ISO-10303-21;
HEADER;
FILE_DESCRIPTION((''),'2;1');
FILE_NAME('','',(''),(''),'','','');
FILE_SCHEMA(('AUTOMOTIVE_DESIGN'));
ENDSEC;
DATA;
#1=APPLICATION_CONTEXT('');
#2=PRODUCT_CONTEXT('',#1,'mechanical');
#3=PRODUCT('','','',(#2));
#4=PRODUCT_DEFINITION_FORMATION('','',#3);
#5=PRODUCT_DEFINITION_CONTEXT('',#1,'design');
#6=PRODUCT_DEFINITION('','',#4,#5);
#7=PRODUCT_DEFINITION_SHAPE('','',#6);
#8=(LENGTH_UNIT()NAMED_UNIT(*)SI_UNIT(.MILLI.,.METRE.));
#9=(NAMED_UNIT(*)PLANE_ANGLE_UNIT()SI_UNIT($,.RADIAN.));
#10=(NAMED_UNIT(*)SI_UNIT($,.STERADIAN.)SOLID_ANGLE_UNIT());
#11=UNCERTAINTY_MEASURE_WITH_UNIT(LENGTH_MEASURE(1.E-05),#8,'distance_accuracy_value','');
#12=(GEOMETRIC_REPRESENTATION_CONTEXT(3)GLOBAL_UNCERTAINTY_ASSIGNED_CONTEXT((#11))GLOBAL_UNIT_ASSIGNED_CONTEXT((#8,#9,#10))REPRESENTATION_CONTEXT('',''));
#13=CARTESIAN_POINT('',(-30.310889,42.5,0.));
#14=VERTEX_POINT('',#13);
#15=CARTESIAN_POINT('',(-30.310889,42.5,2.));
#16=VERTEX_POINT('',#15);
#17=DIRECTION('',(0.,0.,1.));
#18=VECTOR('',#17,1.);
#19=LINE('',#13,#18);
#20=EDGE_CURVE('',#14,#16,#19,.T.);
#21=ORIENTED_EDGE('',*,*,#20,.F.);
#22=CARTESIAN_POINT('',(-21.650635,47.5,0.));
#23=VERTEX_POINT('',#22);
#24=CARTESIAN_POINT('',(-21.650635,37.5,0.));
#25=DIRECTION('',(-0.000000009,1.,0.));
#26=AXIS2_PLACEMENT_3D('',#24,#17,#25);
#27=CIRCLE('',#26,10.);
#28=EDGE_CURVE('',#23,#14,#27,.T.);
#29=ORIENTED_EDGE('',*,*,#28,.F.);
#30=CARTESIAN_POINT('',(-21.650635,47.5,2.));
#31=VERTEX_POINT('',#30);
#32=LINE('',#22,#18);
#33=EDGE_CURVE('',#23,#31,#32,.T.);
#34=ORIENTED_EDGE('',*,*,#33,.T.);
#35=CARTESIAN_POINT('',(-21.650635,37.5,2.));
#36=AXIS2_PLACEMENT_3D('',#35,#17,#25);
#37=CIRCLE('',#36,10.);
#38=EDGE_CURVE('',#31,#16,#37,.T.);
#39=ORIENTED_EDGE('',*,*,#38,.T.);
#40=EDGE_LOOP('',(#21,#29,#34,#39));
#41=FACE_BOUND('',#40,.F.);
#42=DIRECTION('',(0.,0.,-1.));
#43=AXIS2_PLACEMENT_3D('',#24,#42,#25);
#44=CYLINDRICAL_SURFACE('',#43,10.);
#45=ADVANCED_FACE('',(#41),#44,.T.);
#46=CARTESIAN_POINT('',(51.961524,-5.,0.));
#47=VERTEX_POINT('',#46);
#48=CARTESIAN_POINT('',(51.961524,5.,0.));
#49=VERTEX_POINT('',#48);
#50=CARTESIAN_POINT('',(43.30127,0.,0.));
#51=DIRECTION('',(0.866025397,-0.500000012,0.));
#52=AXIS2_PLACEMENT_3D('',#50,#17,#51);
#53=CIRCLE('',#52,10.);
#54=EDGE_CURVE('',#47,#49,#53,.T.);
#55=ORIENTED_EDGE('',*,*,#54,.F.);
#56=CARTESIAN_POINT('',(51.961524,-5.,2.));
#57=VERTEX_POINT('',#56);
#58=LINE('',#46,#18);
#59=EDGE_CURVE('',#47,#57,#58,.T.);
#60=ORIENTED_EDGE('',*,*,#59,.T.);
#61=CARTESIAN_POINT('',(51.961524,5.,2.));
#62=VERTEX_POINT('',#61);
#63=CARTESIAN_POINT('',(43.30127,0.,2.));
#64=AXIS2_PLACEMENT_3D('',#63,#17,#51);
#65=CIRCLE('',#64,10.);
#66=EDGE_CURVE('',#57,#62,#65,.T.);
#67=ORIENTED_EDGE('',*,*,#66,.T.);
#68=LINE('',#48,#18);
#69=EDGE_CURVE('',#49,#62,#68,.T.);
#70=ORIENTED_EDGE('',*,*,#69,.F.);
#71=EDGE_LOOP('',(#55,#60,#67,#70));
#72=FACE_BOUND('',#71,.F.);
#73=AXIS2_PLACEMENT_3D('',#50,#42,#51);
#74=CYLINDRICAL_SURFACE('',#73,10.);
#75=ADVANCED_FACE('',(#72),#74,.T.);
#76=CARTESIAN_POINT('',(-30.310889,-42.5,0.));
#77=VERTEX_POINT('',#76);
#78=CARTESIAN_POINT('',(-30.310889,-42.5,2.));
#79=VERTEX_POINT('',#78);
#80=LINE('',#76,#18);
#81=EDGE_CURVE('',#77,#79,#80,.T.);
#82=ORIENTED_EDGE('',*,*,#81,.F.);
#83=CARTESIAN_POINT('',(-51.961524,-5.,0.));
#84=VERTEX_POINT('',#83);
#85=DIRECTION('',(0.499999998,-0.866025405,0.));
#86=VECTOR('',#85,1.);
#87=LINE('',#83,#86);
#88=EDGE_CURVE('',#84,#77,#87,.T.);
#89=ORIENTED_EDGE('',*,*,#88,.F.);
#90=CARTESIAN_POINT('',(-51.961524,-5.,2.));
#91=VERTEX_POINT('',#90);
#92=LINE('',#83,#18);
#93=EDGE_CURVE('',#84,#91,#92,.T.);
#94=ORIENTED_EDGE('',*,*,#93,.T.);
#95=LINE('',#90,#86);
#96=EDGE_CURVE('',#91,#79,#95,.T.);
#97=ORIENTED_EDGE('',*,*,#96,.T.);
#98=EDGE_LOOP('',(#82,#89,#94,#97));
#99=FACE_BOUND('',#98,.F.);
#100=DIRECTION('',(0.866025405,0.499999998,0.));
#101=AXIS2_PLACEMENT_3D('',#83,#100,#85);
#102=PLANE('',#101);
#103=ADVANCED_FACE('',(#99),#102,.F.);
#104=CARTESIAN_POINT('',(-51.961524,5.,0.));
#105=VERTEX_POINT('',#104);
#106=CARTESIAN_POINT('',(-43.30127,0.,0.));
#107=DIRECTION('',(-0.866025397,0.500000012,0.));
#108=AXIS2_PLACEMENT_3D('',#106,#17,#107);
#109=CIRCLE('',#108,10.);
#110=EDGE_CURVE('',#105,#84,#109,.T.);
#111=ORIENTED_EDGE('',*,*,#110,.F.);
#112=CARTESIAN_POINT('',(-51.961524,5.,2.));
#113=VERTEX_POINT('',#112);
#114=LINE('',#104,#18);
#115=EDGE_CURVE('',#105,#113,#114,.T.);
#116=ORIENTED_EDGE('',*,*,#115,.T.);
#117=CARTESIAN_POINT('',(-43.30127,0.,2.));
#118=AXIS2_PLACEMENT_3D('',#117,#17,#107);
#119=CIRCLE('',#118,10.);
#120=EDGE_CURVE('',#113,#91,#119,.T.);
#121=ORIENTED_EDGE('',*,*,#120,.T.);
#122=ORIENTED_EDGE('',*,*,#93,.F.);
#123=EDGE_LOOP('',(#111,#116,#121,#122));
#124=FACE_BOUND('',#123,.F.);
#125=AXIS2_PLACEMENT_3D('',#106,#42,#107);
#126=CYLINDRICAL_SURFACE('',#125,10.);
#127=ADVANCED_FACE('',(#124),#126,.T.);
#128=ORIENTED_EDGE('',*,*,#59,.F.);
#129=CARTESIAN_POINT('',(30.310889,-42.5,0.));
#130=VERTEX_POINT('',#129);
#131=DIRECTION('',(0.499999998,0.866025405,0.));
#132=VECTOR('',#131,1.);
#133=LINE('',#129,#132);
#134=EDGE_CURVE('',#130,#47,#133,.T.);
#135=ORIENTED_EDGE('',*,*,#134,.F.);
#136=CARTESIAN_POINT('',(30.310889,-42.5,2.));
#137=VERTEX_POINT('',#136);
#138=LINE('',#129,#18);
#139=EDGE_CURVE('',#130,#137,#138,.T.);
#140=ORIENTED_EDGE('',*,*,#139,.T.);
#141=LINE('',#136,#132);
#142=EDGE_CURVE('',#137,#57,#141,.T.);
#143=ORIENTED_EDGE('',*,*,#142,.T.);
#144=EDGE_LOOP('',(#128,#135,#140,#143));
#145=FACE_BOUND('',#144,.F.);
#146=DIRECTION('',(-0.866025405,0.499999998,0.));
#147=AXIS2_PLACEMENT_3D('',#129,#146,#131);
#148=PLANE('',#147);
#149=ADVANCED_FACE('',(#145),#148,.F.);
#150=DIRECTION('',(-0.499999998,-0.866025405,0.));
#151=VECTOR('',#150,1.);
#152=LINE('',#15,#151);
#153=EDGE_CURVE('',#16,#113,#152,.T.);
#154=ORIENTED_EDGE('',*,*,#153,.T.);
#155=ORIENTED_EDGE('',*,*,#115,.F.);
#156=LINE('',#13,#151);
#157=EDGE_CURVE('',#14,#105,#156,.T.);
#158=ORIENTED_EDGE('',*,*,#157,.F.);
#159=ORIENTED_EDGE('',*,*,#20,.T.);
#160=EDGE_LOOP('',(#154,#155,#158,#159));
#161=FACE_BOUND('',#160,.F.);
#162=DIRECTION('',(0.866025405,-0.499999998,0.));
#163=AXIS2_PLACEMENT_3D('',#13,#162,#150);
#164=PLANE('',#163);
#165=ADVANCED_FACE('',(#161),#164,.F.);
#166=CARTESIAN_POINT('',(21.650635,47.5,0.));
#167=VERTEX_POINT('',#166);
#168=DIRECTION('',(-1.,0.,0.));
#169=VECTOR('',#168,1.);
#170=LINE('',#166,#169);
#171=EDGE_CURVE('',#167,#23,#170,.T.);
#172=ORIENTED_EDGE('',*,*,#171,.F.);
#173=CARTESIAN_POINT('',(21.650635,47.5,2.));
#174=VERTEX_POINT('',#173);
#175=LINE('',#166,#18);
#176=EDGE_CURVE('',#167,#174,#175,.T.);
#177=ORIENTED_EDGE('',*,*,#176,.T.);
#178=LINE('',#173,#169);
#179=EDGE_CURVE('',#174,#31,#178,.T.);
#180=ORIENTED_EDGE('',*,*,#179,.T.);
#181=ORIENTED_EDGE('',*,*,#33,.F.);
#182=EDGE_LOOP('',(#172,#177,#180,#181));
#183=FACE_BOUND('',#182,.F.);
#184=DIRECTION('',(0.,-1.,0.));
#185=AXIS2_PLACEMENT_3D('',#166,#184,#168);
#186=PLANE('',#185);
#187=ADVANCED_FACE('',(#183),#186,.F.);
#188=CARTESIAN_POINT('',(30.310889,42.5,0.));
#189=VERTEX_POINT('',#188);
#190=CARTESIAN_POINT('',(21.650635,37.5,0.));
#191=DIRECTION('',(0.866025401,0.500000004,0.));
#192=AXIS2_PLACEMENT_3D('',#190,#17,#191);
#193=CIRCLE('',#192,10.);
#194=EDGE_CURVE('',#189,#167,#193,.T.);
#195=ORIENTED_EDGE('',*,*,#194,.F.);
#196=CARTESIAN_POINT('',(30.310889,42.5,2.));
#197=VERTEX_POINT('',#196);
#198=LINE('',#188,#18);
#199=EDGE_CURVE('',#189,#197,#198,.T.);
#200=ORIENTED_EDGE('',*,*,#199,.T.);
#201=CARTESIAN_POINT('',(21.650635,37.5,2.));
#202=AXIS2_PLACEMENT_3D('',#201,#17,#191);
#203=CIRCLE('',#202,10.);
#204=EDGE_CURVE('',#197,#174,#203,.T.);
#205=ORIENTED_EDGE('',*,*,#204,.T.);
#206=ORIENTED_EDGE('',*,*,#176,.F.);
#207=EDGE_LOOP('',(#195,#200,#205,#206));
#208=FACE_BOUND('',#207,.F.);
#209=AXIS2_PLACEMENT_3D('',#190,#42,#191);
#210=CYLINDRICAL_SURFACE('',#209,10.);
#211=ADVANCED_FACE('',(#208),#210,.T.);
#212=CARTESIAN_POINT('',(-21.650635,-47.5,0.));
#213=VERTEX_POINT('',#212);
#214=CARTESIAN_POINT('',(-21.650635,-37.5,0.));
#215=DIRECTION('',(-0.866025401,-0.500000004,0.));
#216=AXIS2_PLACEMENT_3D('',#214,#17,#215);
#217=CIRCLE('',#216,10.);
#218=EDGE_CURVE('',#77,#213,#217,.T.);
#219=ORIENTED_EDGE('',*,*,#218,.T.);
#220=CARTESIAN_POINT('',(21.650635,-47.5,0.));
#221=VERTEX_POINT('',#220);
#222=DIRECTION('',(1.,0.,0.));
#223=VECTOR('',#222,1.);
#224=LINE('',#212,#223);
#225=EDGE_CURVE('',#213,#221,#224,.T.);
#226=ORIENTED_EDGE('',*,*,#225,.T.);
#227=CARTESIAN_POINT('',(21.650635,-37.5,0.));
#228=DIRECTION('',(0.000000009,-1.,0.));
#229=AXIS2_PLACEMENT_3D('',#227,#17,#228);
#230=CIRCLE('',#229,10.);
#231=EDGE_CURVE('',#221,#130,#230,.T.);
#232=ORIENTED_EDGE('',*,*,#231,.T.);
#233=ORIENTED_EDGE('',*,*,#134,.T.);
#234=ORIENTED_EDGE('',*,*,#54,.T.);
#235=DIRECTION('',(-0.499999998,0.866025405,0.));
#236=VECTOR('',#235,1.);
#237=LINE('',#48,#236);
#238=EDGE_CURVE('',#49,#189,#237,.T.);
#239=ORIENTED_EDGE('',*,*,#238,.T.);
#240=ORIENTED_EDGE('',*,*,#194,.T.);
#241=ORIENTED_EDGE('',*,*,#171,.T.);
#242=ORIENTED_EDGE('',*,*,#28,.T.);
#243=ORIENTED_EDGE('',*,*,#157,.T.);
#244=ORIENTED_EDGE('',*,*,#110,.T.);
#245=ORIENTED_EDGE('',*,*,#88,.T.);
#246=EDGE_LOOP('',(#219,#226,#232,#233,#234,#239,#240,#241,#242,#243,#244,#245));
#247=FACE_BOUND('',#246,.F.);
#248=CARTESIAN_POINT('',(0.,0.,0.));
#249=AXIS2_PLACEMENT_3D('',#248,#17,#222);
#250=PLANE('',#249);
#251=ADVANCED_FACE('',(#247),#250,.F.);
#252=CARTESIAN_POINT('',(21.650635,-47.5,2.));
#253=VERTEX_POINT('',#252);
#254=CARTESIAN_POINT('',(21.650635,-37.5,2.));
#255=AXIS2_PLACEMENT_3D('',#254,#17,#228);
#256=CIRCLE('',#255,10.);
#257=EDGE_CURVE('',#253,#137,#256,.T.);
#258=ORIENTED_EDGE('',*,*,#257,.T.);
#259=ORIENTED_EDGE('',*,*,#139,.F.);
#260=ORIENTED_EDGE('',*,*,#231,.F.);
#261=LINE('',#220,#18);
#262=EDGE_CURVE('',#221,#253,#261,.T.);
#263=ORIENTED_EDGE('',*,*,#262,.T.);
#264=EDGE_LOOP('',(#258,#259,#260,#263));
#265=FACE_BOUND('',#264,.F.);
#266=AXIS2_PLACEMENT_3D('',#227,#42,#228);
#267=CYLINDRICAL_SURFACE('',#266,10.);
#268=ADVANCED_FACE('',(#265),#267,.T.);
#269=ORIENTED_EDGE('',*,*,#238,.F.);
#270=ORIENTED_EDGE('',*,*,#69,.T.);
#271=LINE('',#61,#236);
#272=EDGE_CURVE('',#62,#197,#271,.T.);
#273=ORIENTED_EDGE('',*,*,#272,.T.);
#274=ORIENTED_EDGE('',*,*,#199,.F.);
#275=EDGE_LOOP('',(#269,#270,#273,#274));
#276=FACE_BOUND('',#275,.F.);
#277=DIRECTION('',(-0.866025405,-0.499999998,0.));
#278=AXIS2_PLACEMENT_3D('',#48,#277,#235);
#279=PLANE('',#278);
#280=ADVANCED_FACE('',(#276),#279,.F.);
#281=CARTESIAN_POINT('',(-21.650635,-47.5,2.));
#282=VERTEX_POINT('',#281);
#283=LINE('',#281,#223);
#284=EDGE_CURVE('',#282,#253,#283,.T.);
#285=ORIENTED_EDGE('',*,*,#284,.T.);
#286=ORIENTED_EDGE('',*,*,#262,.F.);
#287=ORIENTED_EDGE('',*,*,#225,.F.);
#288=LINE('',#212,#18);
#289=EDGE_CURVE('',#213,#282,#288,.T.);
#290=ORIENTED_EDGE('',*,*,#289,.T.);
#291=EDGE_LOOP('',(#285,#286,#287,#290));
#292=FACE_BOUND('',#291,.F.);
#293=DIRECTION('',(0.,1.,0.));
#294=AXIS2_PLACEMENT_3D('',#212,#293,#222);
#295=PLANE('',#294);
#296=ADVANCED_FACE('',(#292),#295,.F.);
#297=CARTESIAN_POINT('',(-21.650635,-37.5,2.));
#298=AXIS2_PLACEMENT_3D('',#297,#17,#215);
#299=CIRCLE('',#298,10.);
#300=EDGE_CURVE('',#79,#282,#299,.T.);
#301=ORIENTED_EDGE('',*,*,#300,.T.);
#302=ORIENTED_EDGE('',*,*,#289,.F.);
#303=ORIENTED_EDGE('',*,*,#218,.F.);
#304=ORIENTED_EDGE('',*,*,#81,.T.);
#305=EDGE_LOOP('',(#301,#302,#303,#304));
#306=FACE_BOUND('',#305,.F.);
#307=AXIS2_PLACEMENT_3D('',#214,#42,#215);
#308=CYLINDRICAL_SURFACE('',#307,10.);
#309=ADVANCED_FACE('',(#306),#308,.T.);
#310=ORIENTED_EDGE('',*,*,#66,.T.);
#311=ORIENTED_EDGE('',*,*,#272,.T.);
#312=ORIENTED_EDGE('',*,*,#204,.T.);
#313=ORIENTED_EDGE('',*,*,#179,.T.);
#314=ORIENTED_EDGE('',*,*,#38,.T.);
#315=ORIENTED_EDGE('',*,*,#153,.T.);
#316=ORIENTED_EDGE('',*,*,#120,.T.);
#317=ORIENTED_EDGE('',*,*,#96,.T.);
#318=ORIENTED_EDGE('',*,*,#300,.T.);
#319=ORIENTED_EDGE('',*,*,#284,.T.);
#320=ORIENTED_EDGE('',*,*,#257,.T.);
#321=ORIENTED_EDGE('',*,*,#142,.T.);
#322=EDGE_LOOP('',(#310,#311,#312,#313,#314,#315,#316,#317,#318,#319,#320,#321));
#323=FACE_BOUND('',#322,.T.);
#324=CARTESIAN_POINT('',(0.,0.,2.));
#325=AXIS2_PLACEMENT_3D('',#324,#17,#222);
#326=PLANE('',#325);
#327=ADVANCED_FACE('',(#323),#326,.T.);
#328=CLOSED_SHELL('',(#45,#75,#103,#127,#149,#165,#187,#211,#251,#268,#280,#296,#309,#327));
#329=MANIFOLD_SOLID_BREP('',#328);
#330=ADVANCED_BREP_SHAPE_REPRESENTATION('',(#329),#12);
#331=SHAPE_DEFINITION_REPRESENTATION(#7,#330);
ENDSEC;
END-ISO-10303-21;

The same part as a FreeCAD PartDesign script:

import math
import FreeCAD as App
import Part
import Sketcher
from FreeCAD import Vector
Q = App.Units.Quantity

doc = App.newDocument("Part")
body = doc.addObject("PartDesign::Body", "Body")

sketch1 = body.newObject("Sketcher::SketchObject", "Sketch")
sketch1.AttachmentSupport = (doc.getObject("XY_Plane"), [""])
sketch1.MapMode = "FlatFace"
sketch1.addGeometry(Part.LineSegment(Vector(30.310889, -42.5, 0), Vector(51.961524, -5, 0)), False)
sketch1.addGeometry(Part.ArcOfCircle(Part.Circle(Vector(43.30127, 0, 0), Vector(0, 0, 1), 10), math.radians(-30.000001), math.radians(30.000001)), False)
sketch1.addGeometry(Part.LineSegment(Vector(51.961524, 5, 0), Vector(30.310889, 42.5, 0)), False)
sketch1.addGeometry(Part.ArcOfCircle(Part.Circle(Vector(21.650635, 37.5, 0), Vector(0, 0, 1), 10), math.radians(30), math.radians(89.999999)), False)
sketch1.addGeometry(Part.LineSegment(Vector(21.650635, 47.5, 0), Vector(-21.650635, 47.5, 0)), False)
sketch1.addGeometry(Part.ArcOfCircle(Part.Circle(Vector(-21.650635, 37.5, 0), Vector(0, 0, 1), 10), math.radians(90.000001), math.radians(150)), False)
sketch1.addGeometry(Part.LineSegment(Vector(-30.310889, 42.5, 0), Vector(-51.961524, 5, 0)), False)
sketch1.addGeometry(Part.ArcOfCircle(Part.Circle(Vector(-43.30127, 0, 0), Vector(0, 0, 1), 10), math.radians(149.999999), math.radians(210.000001)), False)
sketch1.addGeometry(Part.LineSegment(Vector(-51.961524, -5, 0), Vector(-30.310889, -42.5, 0)), False)
sketch1.addGeometry(Part.ArcOfCircle(Part.Circle(Vector(-21.650635, -37.5, 0), Vector(0, 0, 1), 10), math.radians(-150), math.radians(-90.000001)), False)
sketch1.addGeometry(Part.LineSegment(Vector(-21.650635, -47.5, 0), Vector(21.650635, -47.5, 0)), False)
sketch1.addGeometry(Part.ArcOfCircle(Part.Circle(Vector(21.650635, -37.5, 0), Vector(0, 0, 1), 10), math.radians(-89.999999), math.radians(-30)), False)
sketch1.addConstraint(Sketcher.Constraint("Tangent", 0, 2, 1, 1))
sketch1.addConstraint(Sketcher.Constraint("Tangent", 1, 2, 2, 1))
sketch1.addConstraint(Sketcher.Constraint("Tangent", 2, 2, 3, 1))
sketch1.addConstraint(Sketcher.Constraint("Tangent", 3, 2, 4, 1))
sketch1.addConstraint(Sketcher.Constraint("Tangent", 4, 2, 5, 1))
sketch1.addConstraint(Sketcher.Constraint("Tangent", 5, 2, 6, 1))
sketch1.addConstraint(Sketcher.Constraint("Tangent", 6, 2, 7, 1))
sketch1.addConstraint(Sketcher.Constraint("Tangent", 7, 2, 8, 1))
sketch1.addConstraint(Sketcher.Constraint("Tangent", 8, 2, 9, 1))
sketch1.addConstraint(Sketcher.Constraint("Tangent", 9, 2, 10, 1))
sketch1.addConstraint(Sketcher.Constraint("Tangent", 10, 2, 11, 1))
sketch1.addConstraint(Sketcher.Constraint("Tangent", 11, 2, 0, 1))
sketch1.addConstraint(Sketcher.Constraint("Horizontal", 4))
sketch1.addConstraint(Sketcher.Constraint("Horizontal", 10))
sketch1.addConstraint(Sketcher.Constraint("Equal", 1, 3))
sketch1.addConstraint(Sketcher.Constraint("Equal", 3, 5))
sketch1.addConstraint(Sketcher.Constraint("Equal", 5, 7))
sketch1.addConstraint(Sketcher.Constraint("Equal", 7, 9))
sketch1.addConstraint(Sketcher.Constraint("Equal", 9, 11))
sketch1.addConstraint(Sketcher.Constraint("Symmetric", 1, 3, 7, 3, -1, 1))
sketch1.addConstraint(Sketcher.Constraint("Symmetric", 3, 3, 9, 3, -1, 1))
sketch1.addConstraint(Sketcher.Constraint("Symmetric", 2, 2, 5, 2, -2))
sketch1.addConstraint(Sketcher.Constraint("Parallel", 0, 6))
sketch1.addConstraint(Sketcher.Constraint("Radius", 1, Q("10 mm")))
sketch1.addConstraint(Sketcher.Constraint("Angle", 0, Q("60 deg")))
sketch1.addConstraint(Sketcher.Constraint("DistanceY", 9, 3, 5, 3, Q("75 mm")))
sketch1.addConstraint(Sketcher.Constraint("DistanceX", 4, 2, 4, 1, Q("43.30127 mm")))
pad1 = body.newObject("PartDesign::Pad", "Pad")
pad1.Profile = sketch1
pad1.Length = 2

doc.recompute()
